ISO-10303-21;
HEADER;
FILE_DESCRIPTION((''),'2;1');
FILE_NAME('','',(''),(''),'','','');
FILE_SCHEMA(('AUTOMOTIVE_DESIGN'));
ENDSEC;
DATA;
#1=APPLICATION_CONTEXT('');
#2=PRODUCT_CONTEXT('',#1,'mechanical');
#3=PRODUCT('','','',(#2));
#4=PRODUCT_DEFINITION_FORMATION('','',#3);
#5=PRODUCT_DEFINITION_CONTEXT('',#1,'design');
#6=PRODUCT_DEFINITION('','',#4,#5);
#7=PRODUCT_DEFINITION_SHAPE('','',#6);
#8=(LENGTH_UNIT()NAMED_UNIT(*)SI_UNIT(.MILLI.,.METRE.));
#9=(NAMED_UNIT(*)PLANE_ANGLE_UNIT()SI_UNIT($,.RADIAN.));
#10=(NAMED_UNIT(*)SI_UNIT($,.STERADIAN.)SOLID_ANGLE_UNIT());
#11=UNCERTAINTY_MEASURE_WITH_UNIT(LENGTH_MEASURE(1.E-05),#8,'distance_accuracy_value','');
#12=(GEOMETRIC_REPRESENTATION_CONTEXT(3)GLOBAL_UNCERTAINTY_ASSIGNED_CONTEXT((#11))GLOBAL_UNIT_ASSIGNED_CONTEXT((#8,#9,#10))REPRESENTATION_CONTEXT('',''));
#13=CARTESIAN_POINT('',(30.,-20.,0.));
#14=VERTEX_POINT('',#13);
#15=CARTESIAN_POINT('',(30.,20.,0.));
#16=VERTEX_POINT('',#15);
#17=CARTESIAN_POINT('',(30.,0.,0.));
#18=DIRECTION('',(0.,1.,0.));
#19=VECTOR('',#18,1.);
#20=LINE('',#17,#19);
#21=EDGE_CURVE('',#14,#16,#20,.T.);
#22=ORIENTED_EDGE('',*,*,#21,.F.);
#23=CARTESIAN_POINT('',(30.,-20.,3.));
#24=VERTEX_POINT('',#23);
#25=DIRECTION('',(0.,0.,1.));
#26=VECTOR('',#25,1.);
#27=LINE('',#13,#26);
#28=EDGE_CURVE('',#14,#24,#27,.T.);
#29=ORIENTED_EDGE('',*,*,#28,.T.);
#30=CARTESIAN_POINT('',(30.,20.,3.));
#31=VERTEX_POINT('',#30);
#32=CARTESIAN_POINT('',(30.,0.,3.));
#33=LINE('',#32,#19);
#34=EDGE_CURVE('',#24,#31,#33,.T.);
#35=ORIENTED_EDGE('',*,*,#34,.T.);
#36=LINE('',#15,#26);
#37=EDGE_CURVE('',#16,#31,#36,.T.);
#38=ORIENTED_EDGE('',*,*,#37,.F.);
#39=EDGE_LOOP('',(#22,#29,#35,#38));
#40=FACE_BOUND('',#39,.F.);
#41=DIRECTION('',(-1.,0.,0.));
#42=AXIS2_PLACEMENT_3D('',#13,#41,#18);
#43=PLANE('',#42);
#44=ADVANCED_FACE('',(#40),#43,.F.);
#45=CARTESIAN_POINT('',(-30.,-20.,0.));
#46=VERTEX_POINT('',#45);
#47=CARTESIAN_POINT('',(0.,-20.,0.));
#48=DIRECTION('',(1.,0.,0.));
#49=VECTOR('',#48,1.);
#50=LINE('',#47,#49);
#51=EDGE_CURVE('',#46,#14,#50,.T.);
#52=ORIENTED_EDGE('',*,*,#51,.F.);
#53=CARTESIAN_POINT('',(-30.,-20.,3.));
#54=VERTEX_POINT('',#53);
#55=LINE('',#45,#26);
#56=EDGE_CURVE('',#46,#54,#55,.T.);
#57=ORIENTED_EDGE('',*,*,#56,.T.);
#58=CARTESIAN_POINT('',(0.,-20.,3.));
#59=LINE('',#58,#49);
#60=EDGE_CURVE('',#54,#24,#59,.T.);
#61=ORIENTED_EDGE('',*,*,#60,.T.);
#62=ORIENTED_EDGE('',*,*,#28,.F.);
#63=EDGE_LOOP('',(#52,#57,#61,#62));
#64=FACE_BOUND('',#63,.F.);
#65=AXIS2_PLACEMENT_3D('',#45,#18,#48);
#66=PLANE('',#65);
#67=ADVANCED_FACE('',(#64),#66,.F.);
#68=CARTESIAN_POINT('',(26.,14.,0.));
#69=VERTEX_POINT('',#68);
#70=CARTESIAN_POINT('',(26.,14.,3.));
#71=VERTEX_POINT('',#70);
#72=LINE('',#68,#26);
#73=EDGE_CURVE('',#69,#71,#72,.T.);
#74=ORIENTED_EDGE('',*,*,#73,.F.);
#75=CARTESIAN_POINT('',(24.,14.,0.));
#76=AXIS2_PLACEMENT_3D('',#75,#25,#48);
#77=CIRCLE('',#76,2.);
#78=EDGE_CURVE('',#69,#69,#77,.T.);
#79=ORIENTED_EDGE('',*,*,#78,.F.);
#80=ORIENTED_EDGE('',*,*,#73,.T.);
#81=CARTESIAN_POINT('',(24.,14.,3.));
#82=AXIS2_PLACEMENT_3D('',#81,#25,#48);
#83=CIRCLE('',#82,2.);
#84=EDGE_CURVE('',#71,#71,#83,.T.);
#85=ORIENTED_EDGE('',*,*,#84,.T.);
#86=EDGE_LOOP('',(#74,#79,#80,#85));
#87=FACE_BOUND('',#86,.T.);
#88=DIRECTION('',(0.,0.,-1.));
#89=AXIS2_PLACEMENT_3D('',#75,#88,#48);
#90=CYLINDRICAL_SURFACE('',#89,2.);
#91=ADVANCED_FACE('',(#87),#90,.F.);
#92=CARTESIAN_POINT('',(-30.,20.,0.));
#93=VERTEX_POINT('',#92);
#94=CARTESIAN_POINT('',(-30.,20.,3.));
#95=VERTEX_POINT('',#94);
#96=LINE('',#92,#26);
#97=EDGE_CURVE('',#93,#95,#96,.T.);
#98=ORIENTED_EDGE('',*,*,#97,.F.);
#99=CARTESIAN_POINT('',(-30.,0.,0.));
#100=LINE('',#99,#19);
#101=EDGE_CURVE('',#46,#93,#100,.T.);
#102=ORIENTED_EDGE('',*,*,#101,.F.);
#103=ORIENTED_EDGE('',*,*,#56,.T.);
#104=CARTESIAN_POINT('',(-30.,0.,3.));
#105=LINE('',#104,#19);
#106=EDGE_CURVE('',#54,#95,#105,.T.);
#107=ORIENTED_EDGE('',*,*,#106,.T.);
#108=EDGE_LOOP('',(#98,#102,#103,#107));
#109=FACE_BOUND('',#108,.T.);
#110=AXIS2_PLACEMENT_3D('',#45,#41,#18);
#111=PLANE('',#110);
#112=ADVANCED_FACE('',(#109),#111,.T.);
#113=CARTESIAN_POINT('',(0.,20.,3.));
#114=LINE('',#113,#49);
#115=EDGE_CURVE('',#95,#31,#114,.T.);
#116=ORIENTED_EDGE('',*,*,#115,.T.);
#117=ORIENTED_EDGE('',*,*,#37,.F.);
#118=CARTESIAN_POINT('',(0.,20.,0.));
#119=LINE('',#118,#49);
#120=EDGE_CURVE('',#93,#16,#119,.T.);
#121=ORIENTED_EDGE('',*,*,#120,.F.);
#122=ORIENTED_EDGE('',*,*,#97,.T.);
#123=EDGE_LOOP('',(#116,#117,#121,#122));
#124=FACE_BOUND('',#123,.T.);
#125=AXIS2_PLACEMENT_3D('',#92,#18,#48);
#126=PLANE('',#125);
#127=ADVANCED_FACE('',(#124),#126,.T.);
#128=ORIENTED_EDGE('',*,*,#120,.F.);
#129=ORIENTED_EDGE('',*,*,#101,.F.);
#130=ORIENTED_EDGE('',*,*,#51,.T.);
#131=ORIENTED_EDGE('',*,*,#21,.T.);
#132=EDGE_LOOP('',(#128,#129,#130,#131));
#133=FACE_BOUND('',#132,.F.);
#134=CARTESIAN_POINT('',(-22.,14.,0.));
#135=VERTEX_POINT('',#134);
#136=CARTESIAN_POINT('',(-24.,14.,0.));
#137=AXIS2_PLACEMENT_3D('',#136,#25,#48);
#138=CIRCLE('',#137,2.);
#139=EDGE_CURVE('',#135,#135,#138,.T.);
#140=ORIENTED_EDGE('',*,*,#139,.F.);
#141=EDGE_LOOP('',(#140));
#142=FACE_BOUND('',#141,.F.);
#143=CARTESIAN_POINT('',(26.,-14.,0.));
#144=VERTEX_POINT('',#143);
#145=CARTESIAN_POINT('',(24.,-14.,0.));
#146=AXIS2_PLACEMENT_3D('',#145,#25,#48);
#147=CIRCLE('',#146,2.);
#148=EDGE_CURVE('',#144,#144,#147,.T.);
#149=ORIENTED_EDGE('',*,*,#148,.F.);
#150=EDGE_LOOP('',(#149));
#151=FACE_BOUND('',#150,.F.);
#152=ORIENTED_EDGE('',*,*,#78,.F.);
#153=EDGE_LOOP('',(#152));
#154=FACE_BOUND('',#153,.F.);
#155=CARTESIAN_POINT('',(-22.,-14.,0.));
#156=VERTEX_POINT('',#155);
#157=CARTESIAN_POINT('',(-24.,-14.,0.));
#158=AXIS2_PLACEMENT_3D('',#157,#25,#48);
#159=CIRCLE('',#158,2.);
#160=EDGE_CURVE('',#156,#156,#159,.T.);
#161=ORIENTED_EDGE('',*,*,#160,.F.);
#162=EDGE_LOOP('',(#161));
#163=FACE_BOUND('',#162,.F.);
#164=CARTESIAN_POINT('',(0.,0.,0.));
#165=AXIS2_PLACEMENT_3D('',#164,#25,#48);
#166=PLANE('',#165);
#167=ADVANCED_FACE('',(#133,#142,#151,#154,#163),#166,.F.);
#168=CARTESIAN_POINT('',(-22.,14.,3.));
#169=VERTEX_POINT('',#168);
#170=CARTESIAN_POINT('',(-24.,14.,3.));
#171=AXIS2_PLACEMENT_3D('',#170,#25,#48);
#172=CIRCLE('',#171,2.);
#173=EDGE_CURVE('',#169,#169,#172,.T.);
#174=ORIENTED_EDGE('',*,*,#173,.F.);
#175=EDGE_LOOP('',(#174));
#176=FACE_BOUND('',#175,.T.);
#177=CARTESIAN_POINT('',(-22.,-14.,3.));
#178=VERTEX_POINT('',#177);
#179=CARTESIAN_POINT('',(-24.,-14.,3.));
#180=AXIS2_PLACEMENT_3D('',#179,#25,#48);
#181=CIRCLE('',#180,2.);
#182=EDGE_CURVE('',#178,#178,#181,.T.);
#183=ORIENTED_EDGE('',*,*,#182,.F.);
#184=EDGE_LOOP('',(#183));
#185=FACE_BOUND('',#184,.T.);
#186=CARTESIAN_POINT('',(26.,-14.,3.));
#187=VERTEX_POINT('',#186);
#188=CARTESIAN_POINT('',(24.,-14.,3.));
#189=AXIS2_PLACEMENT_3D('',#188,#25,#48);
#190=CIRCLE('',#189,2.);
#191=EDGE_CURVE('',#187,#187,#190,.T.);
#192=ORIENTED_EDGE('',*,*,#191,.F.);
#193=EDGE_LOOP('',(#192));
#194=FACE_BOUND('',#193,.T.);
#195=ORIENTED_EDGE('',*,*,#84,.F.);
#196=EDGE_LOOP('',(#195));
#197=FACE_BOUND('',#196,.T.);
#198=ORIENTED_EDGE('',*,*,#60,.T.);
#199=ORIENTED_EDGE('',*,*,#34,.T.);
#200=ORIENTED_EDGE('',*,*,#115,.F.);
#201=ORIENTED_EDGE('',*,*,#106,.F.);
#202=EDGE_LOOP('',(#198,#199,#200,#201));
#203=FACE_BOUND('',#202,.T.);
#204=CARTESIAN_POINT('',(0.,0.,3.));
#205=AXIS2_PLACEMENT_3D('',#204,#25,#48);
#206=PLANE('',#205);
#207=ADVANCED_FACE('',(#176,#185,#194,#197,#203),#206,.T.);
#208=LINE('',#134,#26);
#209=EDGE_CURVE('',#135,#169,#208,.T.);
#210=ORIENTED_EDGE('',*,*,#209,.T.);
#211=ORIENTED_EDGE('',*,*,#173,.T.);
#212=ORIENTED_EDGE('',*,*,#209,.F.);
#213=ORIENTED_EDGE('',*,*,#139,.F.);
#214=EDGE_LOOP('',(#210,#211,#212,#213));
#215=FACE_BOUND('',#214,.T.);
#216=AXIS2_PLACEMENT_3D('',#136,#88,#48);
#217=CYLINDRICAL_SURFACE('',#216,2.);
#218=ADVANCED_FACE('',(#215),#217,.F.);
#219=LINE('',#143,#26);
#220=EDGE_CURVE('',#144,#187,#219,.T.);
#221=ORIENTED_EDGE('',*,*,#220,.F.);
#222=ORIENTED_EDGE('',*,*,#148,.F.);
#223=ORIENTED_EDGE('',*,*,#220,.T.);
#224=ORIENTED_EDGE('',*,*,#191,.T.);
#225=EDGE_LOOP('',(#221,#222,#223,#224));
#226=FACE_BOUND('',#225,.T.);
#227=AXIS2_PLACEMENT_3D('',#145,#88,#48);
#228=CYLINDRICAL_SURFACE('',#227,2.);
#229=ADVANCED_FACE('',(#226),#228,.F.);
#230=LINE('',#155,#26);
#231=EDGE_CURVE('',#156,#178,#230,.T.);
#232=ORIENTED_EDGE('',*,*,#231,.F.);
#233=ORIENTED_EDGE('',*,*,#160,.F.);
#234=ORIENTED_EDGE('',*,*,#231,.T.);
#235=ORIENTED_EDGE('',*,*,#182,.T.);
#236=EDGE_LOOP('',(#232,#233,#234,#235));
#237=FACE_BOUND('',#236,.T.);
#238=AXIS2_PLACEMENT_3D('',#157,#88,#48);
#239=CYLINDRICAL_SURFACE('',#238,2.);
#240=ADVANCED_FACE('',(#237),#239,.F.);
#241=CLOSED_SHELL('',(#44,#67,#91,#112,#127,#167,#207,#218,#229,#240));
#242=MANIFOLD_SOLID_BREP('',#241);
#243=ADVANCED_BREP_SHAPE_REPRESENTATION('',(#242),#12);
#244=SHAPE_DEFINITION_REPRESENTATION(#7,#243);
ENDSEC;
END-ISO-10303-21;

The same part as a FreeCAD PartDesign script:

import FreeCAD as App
import Part
import Sketcher
from FreeCAD import Vector


def add_polygon(sketch, points):
    """Adds a closed chain of lines whose ends are joined by coincident constraints."""
    first, n = sketch.GeometryCount, len(points)
    for a, b in zip(points, points[1:] + points[:1]):
        sketch.addGeometry(Part.LineSegment(App.Vector(*a, 0), App.Vector(*b, 0)), False)
    for i in range(n):
        sketch.addConstraint(Sketcher.Constraint("Coincident", first + i, 2, first + (i + 1) % n, 1))

doc = App.newDocument("Part")
body = doc.addObject("PartDesign::Body", "Body")

# Sketch on XY plane
sketch1 = body.newObject("Sketcher::SketchObject", "Sketch")
sketch1.AttachmentSupport = (doc.getObject("XY_Plane"), [""])
sketch1.MapMode = "FlatFace"
add_polygon(sketch1, [(-30, 20), (-30, -20), (30, -20), (30, 20)])  # lines 0-3
sketch1.addGeometry(Part.Circle(Vector(-24, -14, 0), Vector(0, 0, 1), 2), False)  # 4
sketch1.addGeometry(Part.Circle(Vector(24, -14, 0), Vector(0, 0, 1), 2), False)  # 5
sketch1.addGeometry(Part.Circle(Vector(-24, 14, 0), Vector(0, 0, 1), 2), False)  # 6
sketch1.addGeometry(Part.Circle(Vector(24, 14, 0), Vector(0, 0, 1), 2), False)  # 7
sketch1.addConstraint([
    Sketcher.Constraint("Vertical", 0),
    Sketcher.Constraint("Horizontal", 1),
    Sketcher.Constraint("Vertical", 2),
    Sketcher.Constraint("Horizontal", 3),
    Sketcher.Constraint("Equal", 4, 5),
    Sketcher.Constraint("Equal", 5, 6),
    Sketcher.Constraint("Equal", 6, 7),
    Sketcher.Constraint("Symmetric", 5, 3, 6, 3, -1, 1),
    Sketcher.Constraint("Symmetric", 4, 3, 7, 3, -1, 1),
    Sketcher.Constraint("Symmetric", 0, 2, 2, 2, -1, 1),
    Sketcher.Constraint("Symmetric", 4, 3, 5, 3, -2),
    Sketcher.Constraint("Diameter", 4, 4.0),
    Sketcher.Constraint("DistanceX", 1, 1, 1, 2, 60.0),
    Sketcher.Constraint("DistanceY", 0, 2, 0, 1, 40.0),
    Sketcher.Constraint("DistanceX", 4, 3, -1, 1, 24.0),
    Sketcher.Constraint("DistanceY", 4, 3, -1, 1, 14.0),
])
pad1 = body.newObject("PartDesign::Pad", "Pad")
pad1.Profile = sketch1
pad1.Length = 3

doc.recompute()
